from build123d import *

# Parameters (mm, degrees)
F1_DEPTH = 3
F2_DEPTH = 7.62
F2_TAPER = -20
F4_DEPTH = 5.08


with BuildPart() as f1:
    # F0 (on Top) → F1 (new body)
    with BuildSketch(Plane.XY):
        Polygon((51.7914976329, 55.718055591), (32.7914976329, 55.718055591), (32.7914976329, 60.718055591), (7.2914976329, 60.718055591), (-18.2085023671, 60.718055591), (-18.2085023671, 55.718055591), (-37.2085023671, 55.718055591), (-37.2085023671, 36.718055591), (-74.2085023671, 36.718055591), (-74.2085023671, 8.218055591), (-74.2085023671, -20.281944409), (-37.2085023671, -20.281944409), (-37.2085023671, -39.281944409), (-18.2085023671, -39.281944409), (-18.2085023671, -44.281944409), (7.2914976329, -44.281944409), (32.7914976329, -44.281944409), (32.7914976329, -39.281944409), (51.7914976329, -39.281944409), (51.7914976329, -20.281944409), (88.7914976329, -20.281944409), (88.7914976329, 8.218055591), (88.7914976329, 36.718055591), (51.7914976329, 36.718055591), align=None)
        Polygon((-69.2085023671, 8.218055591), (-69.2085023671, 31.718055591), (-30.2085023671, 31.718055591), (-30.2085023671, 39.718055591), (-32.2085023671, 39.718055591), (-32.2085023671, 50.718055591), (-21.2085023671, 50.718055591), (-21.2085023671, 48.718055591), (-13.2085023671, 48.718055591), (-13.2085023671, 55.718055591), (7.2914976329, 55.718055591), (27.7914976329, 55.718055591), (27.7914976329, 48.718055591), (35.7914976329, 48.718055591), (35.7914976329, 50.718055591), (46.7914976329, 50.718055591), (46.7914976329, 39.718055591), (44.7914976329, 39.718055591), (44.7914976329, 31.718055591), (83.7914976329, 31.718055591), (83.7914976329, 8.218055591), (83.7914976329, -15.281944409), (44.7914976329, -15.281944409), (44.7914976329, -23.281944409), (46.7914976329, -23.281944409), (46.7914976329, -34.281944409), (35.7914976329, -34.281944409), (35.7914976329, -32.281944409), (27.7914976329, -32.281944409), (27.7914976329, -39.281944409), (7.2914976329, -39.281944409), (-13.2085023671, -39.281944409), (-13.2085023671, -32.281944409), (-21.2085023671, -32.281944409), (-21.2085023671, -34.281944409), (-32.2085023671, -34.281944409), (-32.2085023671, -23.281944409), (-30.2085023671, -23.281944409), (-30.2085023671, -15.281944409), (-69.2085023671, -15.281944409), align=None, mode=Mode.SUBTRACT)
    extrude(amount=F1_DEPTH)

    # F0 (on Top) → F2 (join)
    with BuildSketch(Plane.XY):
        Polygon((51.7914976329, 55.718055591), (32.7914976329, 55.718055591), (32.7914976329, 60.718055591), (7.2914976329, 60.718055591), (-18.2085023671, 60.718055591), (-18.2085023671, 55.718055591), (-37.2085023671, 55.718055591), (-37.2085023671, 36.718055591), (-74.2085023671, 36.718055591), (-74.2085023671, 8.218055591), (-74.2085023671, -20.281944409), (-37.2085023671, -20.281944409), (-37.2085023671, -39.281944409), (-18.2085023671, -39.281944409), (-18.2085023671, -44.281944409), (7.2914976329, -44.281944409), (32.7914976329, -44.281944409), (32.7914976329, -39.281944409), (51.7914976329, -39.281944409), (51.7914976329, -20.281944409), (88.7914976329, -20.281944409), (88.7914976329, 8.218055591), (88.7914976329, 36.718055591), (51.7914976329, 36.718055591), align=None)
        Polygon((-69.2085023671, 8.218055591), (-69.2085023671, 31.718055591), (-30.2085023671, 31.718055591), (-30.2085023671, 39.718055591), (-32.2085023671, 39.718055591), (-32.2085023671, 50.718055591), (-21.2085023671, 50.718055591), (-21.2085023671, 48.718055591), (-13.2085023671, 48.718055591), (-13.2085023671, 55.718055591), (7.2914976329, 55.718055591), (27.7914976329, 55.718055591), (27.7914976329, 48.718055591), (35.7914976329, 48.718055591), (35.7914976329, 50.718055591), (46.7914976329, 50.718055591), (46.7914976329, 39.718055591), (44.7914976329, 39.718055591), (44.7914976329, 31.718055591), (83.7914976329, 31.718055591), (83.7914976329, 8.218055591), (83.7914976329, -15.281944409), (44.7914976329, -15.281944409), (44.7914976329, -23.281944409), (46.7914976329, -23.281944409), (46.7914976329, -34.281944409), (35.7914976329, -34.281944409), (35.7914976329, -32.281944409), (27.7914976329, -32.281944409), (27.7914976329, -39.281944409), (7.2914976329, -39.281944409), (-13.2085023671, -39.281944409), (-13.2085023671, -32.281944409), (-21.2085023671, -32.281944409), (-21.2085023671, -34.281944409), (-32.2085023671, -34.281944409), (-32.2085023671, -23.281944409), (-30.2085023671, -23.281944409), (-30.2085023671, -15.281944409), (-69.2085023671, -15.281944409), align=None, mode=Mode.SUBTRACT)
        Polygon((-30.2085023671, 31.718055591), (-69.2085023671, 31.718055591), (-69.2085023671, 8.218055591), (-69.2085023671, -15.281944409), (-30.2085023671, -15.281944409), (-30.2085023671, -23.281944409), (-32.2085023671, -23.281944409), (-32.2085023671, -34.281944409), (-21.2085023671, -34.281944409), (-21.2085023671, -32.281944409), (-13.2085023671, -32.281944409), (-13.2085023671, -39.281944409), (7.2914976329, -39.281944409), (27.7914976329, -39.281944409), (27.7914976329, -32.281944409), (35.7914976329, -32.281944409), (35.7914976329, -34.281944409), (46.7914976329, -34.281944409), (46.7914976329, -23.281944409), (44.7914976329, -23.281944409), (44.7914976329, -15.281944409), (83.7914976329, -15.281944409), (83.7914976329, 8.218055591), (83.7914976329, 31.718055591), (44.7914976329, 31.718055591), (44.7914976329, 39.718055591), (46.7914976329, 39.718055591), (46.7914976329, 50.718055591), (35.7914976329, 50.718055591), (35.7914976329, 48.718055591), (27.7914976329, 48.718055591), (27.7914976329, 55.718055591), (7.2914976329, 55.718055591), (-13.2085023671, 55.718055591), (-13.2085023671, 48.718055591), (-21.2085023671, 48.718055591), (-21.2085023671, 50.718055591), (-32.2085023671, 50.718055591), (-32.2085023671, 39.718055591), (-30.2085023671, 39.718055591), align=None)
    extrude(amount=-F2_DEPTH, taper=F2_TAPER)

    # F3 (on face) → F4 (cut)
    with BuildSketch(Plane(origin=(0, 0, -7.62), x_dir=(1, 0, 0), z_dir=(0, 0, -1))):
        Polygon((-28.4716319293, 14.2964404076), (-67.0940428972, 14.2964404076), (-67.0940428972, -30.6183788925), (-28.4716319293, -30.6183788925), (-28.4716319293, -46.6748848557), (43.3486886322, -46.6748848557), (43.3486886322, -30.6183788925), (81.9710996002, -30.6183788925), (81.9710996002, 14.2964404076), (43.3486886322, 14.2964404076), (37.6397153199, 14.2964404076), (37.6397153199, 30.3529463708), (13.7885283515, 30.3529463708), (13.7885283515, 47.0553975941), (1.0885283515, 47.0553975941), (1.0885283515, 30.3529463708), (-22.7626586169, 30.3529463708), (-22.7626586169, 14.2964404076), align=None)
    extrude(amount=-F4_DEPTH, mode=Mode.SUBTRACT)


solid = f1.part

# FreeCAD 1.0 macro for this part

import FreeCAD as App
import Part
import Sketcher
Q = App.Units.Quantity


def add_polygon(sketch, points):
    """Adds a closed chain of lines whose ends are joined by coincident constraints."""
    first, n = sketch.GeometryCount, len(points)
    for a, b in zip(points, points[1:] + points[:1]):
        sketch.addGeometry(Part.LineSegment(App.Vector(*a, 0), App.Vector(*b, 0)), False)
    for i in range(n):
        sketch.addConstraint(Sketcher.Constraint("Coincident", first + i, 2, first + (i + 1) % n, 1))

doc = App.newDocument("Part")
body = doc.addObject("PartDesign::Body", "Body")

sketch1 = body.newObject("Sketcher::SketchObject", "Sketch")
sketch1.AttachmentSupport = (doc.getObject("XY_Plane"), [""])
sketch1.MapMode = "FlatFace"
add_polygon(sketch1, [(51.8, 55.7), (32.8, 55.7), (32.8, 60.7), (-18.2, 60.7), (-18.2, 55.7), (-37.2, 55.7), (-37.2, 36.7), (-74.2, 36.7), (-74.2, -20.3), (-37.2, -20.3), (-37.2, -39.3), (-18.2, -39.3), (-18.2, -44.3), (32.8, -44.3), (32.8, -39.3), (51.8, -39.3), (51.8, -20.3), (88.8, -20.3), (88.8, 36.7), (51.8, 36.7)])
add_polygon(sketch1, [(-69.2, -15.3), (-69.2, 31.7), (-30.2, 31.7), (-30.2, 39.7), (-32.2, 39.7), (-32.2, 50.7), (-21.2, 50.7), (-21.2, 48.7), (-13.2, 48.7), (-13.2, 55.7), (27.8, 55.7), (27.8, 48.7), (35.8, 48.7), (35.8, 50.7), (46.8, 50.7), (46.8, 39.7), (44.8, 39.7), (44.8, 31.7), (83.8, 31.7), (83.8, -15.3), (44.8, -15.3), (44.8, -23.3), (46.8, -23.3), (46.8, -34.3), (35.8, -34.3), (35.8, -32.3), (27.8, -32.3), (27.8, -39.3), (-13.2, -39.3), (-13.2, -32.3), (-21.2, -32.3), (-21.2, -34.3), (-32.2, -34.3), (-32.2, -23.3), (-30.2, -23.3), (-30.2, -15.3)])
sketch1.addConstraint([
    Sketcher.Constraint("Horizontal", 0),
    Sketcher.Constraint("Vertical", 1),
    Sketcher.Constraint("Horizontal", 2),
    Sketcher.Constraint("Vertical", 3),
    Sketcher.Constraint("Horizontal", 4),
    Sketcher.Constraint("Vertical", 5),
    Sketcher.Constraint("Horizontal", 6),
    Sketcher.Constraint("Vertical", 7),
    Sketcher.Constraint("Horizontal", 8),
    Sketcher.Constraint("Vertical", 9),
    Sketcher.Constraint("Horizontal", 10),
    Sketcher.Constraint("Vertical", 11),
    Sketcher.Constraint("Horizontal", 12),
    Sketcher.Constraint("Vertical", 13),
    Sketcher.Constraint("Horizontal", 14),
    Sketcher.Constraint("Vertical", 15),
    Sketcher.Constraint("Horizontal", 16),
    Sketcher.Constraint("Vertical", 17),
    Sketcher.Constraint("Horizontal", 18),
    Sketcher.Constraint("Vertical", 19),
    Sketcher.Constraint("Vertical", 20),
    Sketcher.Constraint("Horizontal", 21),
    Sketcher.Constraint("Vertical", 22),
    Sketcher.Constraint("Horizontal", 23),
    Sketcher.Constraint("Vertical", 24),
    Sketcher.Constraint("Horizontal", 25),
    Sketcher.Constraint("Vertical", 26),
    Sketcher.Constraint("Horizontal", 27),
    Sketcher.Constraint("Vertical", 28),
    Sketcher.Constraint("Horizontal", 29),
    Sketcher.Constraint("Vertical", 30),
    Sketcher.Constraint("Horizontal", 31),
    Sketcher.Constraint("Vertical", 32),
    Sketcher.Constraint("Horizontal", 33),
    Sketcher.Constraint("Vertical", 34),
    Sketcher.Constraint("Horizontal", 35),
    Sketcher.Constraint("Vertical", 36),
    Sketcher.Constraint("Horizontal", 37),
    Sketcher.Constraint("Vertical", 38),
    Sketcher.Constraint("Horizontal", 39),
    Sketcher.Constraint("Vertical", 40),
    Sketcher.Constraint("Horizontal", 41),
    Sketcher.Constraint("Vertical", 42),
    Sketcher.Constraint("Horizontal", 43),
    Sketcher.Constraint("Vertical", 44),
    Sketcher.Constraint("Horizontal", 45),
    Sketcher.Constraint("Vertical", 46),
    Sketcher.Constraint("Horizontal", 47),
    Sketcher.Constraint("Vertical", 48),
    Sketcher.Constraint("Horizontal", 49),
    Sketcher.Constraint("Vertical", 50),
    Sketcher.Constraint("Horizontal", 51),
    Sketcher.Constraint("Vertical", 52),
    Sketcher.Constraint("Horizontal", 53),
    Sketcher.Constraint("Vertical", 54),
    Sketcher.Constraint("Horizontal", 55),
    Sketcher.Constraint("Horizontal", 0, 2, 3, 2),
    Sketcher.Constraint("Horizontal", 10, 2, 13, 2),
    Sketcher.Constraint("Horizontal", 8, 2, 15, 2),
    Sketcher.Constraint("Horizontal", 6, 2, 17, 2),
    Sketcher.Constraint("Horizontal", 19, 2, 28, 2),
    Sketcher.Constraint("Horizontal", 27, 2, 30, 2),
    Sketcher.Constraint("Horizontal", 25, 2, 32, 2),
    Sketcher.Constraint("Horizontal", 23, 2, 34, 2),
    Sketcher.Constraint("Horizontal", 21, 2, 36, 2),
    Sketcher.Constraint("Horizontal", 14, 2, 46, 2),
    Sketcher.Constraint("Horizontal", 45, 2, 48, 2),
    Sketcher.Constraint("Horizontal", 43, 2, 50, 2),
    Sketcher.Constraint("Horizontal", 41, 2, 52, 2),
    Sketcher.Constraint("Horizontal", 39, 2, 54, 2),
    Sketcher.Constraint("Vertical", 5, 2, 8, 2),
    Sketcher.Constraint("Vertical", 3, 2, 10, 2),
    Sketcher.Constraint("Vertical", 1, 2, 12, 2),
    Sketcher.Constraint("Vertical", 15, 2, 18, 2),
    Sketcher.Constraint("Vertical", 36, 2, 39, 2),
    Sketcher.Constraint("Vertical", 34, 2, 41, 2),
    Sketcher.Constraint("Vertical", 32, 2, 43, 2),
    Sketcher.Constraint("Vertical", 30, 2, 45, 2),
    Sketcher.Constraint("Vertical", 28, 2, 47, 2),
    Sketcher.Constraint("Vertical", 26, 2, 49, 2),
    Sketcher.Constraint("Vertical", 24, 2, 51, 2),
    Sketcher.Constraint("Vertical", 22, 2, 53, 2),
    Sketcher.Constraint("Equal", 0, 4),
    Sketcher.Constraint("Equal", 8, 16),
    Sketcher.Constraint("Equal", 27, 31),
    Sketcher.Constraint("Equal", 25, 33),
    Sketcher.Constraint("Equal", 23, 35),
    Sketcher.Constraint("Equal", 21, 37),
    Sketcher.Constraint("Equal", 14, 5),
    Sketcher.Constraint("Equal", 5, 9),
    Sketcher.Constraint("Equal", 3, 11),
    Sketcher.Constraint("Equal", 49, 22),
    Sketcher.Constraint("Equal", 51, 24),
    Sketcher.Constraint("Equal", 53, 26),
    Sketcher.Constraint("Equal", 36, 40),
    Sketcher.Constraint("Equal", 34, 42),
    Sketcher.Constraint("Equal", 32, 44),
    Sketcher.Constraint("Equal", 30, 46),
    Sketcher.Constraint("DistanceX", 0, 2, 0, 1, Q("19 mm")),
    Sketcher.Constraint("DistanceX", 2, 2, 2, 1, Q("51 mm")),
    Sketcher.Constraint("DistanceX", 6, 2, 6, 1, Q("37 mm")),
    Sketcher.Constraint("DistanceX", 21, 1, 21, 2, Q("39 mm")),
    Sketcher.Constraint("DistanceX", 23, 2, 23, 1, Q("2 mm")),
    Sketcher.Constraint("DistanceX", 25, 1, 25, 2, Q("11 mm")),
    Sketcher.Constraint("DistanceX", 27, 1, 27, 2, Q("8 mm")),
    Sketcher.Constraint("DistanceX", 29, 1, 29, 2, Q("41 mm")),
    Sketcher.Constraint("DistanceY", 1, 1, 1, 2, Q("5 mm")),
    Sketcher.Constraint("DistanceY", 7, 2, 7, 1, Q("57 mm")),
    Sketcher.Constraint("DistanceY", 20, 1, 20, 2, Q("47 mm")),
    Sketcher.Constraint("DistanceX", 6, 2, 20, 2, Q("5 mm")),
    Sketcher.Constraint("DistanceX", -1, 1, 0, 2, Q("32.791498 mm")),
    Sketcher.Constraint("DistanceY", -1, 1, 0, 2, Q("55.718056 mm")),
])
pad1 = body.newObject("PartDesign::Pad", "Pad")
pad1.Profile = sketch1
pad1.Length = 3

sketch2 = body.newObject("Sketcher::SketchObject", "Sketch001")
sketch2.AttachmentSupport = (doc.getObject("XY_Plane"), [""])
sketch2.MapMode = "FlatFace"
add_polygon(sketch2, [(52, 56), (33, 56), (33, 61), (-18, 61), (-18, 56), (-37, 56), (-37, 37), (-74, 37), (-74, -20), (-37, -20), (-37, -39), (-18, -39), (-18, -44), (33, -44), (33, -39), (52, -39), (52, -20), (89, -20), (89, 37), (52, 37)])
sketch2.addConstraint([
    Sketcher.Constraint("Horizontal", 0),
    Sketcher.Constraint("Vertical", 1),
    Sketcher.Constraint("Horizontal", 2),
    Sketcher.Constraint("Vertical", 3),
    Sketcher.Constraint("Horizontal", 4),
    Sketcher.Constraint("Vertical", 5),
    Sketcher.Constraint("Horizontal", 6),
    Sketcher.Constraint("Vertical", 7),
    Sketcher.Constraint("Horizontal", 8),
    Sketcher.Constraint("Vertical", 9),
    Sketcher.Constraint("Horizontal", 10),
    Sketcher.Constraint("Vertical", 11),
    Sketcher.Constraint("Horizontal", 12),
    Sketcher.Constraint("Vertical", 13),
    Sketcher.Constraint("Horizontal", 14),
    Sketcher.Constraint("Vertical", 15),
    Sketcher.Constraint("Horizontal", 16),
    Sketcher.Constraint("Vertical", 17),
    Sketcher.Constraint("Horizontal", 18),
    Sketcher.Constraint("Vertical", 19),
    Sketcher.Constraint("Horizontal", 0, 2, 3, 2),
    Sketcher.Constraint("Horizontal", 10, 2, 13, 2),
    Sketcher.Constraint("Horizontal", 8, 2, 15, 2),
    Sketcher.Constraint("Horizontal", 6, 2, 17, 2),
    Sketcher.Constraint("Vertical", 5, 2, 8, 2),
    Sketcher.Constraint("Vertical", 3, 2, 10, 2),
    Sketcher.Constraint("Vertical", 1, 2, 12, 2),
    Sketcher.Constraint("Vertical", 15, 2, 18, 2),
    Sketcher.Constraint("Equal", 0, 4),
    Sketcher.Constraint("Equal", 8, 16),
    Sketcher.Constraint("Equal", 14, 5),
    Sketcher.Constraint("Equal", 5, 9),
    Sketcher.Constraint("Equal", 3, 11),
    Sketcher.Constraint("DistanceX", 0, 2, 0, 1, Q("19 mm")),
    Sketcher.Constraint("DistanceX", 2, 2, 2, 1, Q("51 mm")),
    Sketcher.Constraint("DistanceX", 6, 2, 6, 1, Q("37 mm")),
    Sketcher.Constraint("DistanceY", 1, 1, 1, 2, Q("5 mm")),
    Sketcher.Constraint("DistanceY", 7, 2, 7, 1, Q("57 mm")),
    Sketcher.Constraint("DistanceX", -1, 1, 0, 2, Q("32.791498 mm")),
    Sketcher.Constraint("DistanceY", -1, 1, 0, 2, Q("55.718056 mm")),
])
pad2 = body.newObject("PartDesign::Pad", "Pad001")
pad2.Profile = sketch2
pad2.Length = 7.62
pad2.Reversed = True
pad2.TaperAngle = 20

sketch3 = body.newObject("Sketcher::SketchObject", "Sketch002")
sketch3.AttachmentSupport = (doc.getObject("XY_Plane"), [""])
sketch3.MapMode = "FlatFace"
sketch3.AttachmentOffset = App.Placement(App.Vector(0, 0, -7.62), App.Rotation())
add_polygon(sketch3, [(-67, -14), (-67, 31), (-28, 31), (-28, 47), (43, 47), (43, 31), (82, 31), (82, -14), (38, -14), (38, -30), (14, -30), (14, -47), (1, -47), (1, -30), (-23, -30), (-23, -14)])
sketch3.addConstraint([
    Sketcher.Constraint("Vertical", 0),
    Sketcher.Constraint("Horizontal", 1),
    Sketcher.Constraint("Vertical", 2),
    Sketcher.Constraint("Horizontal", 3),
    Sketcher.Constraint("Vertical", 4),
    Sketcher.Constraint("Horizontal", 5),
    Sketcher.Constraint("Vertical", 6),
    Sketcher.Constraint("Horizontal", 7),
    Sketcher.Constraint("Vertical", 8),
    Sketcher.Constraint("Horizontal", 9),
    Sketcher.Constraint("Vertical", 10),
    Sketcher.Constraint("Horizontal", 11),
    Sketcher.Constraint("Vertical", 12),
    Sketcher.Constraint("Horizontal", 13),
    Sketcher.Constraint("Vertical", 14),
    Sketcher.Constraint("Horizontal", 15),
    Sketcher.Constraint("Horizontal", 1, 2, 4, 2),
    Sketcher.Constraint("Horizontal", 9, 2, 12, 2),
    Sketcher.Constraint("Horizontal", 7, 2, 14, 2),
    Sketcher.Constraint("Equal", 1, 5),
    Sketcher.Constraint("Equal", 9, 13),
    Sketcher.Constraint("Equal", 7, 15),
    Sketcher.Constraint("Equal", 4, 8),
    Sketcher.Constraint("DistanceX", 11, 2, 11, 1, Q("12.7 mm")),
    Sketcher.Constraint("DistanceX", 1, 1, 1, 2, Q("38.622411 mm")),
    Sketcher.Constraint("DistanceX", 3, 1, 3, 2, Q("71.820321 mm")),
    Sketcher.Constraint("DistanceY", 0, 1, 0, 2, Q("44.914819 mm")),
    Sketcher.Constraint("DistanceY", 10, 2, 10, 1, Q("16.702451 mm")),
    Sketcher.Constraint("DistanceX", -1, 1, 5, 2, Q("81.9711 mm")),
    Sketcher.Constraint("DistanceX", 7, 2, 7, 1, Q("44.331384 mm")),
    Sketcher.Constraint("DistanceY", 2, 1, 2, 2, Q("16.056506 mm")),
    Sketcher.Constraint("DistanceY", -1, 1, 0, 2, Q("30.618379 mm")),
])
pocket1 = body.newObject("PartDesign::Pocket", "Pocket")
pocket1.Profile = sketch3
pocket1.Length = 5.08
pocket1.Reversed = True

doc.recompute()
